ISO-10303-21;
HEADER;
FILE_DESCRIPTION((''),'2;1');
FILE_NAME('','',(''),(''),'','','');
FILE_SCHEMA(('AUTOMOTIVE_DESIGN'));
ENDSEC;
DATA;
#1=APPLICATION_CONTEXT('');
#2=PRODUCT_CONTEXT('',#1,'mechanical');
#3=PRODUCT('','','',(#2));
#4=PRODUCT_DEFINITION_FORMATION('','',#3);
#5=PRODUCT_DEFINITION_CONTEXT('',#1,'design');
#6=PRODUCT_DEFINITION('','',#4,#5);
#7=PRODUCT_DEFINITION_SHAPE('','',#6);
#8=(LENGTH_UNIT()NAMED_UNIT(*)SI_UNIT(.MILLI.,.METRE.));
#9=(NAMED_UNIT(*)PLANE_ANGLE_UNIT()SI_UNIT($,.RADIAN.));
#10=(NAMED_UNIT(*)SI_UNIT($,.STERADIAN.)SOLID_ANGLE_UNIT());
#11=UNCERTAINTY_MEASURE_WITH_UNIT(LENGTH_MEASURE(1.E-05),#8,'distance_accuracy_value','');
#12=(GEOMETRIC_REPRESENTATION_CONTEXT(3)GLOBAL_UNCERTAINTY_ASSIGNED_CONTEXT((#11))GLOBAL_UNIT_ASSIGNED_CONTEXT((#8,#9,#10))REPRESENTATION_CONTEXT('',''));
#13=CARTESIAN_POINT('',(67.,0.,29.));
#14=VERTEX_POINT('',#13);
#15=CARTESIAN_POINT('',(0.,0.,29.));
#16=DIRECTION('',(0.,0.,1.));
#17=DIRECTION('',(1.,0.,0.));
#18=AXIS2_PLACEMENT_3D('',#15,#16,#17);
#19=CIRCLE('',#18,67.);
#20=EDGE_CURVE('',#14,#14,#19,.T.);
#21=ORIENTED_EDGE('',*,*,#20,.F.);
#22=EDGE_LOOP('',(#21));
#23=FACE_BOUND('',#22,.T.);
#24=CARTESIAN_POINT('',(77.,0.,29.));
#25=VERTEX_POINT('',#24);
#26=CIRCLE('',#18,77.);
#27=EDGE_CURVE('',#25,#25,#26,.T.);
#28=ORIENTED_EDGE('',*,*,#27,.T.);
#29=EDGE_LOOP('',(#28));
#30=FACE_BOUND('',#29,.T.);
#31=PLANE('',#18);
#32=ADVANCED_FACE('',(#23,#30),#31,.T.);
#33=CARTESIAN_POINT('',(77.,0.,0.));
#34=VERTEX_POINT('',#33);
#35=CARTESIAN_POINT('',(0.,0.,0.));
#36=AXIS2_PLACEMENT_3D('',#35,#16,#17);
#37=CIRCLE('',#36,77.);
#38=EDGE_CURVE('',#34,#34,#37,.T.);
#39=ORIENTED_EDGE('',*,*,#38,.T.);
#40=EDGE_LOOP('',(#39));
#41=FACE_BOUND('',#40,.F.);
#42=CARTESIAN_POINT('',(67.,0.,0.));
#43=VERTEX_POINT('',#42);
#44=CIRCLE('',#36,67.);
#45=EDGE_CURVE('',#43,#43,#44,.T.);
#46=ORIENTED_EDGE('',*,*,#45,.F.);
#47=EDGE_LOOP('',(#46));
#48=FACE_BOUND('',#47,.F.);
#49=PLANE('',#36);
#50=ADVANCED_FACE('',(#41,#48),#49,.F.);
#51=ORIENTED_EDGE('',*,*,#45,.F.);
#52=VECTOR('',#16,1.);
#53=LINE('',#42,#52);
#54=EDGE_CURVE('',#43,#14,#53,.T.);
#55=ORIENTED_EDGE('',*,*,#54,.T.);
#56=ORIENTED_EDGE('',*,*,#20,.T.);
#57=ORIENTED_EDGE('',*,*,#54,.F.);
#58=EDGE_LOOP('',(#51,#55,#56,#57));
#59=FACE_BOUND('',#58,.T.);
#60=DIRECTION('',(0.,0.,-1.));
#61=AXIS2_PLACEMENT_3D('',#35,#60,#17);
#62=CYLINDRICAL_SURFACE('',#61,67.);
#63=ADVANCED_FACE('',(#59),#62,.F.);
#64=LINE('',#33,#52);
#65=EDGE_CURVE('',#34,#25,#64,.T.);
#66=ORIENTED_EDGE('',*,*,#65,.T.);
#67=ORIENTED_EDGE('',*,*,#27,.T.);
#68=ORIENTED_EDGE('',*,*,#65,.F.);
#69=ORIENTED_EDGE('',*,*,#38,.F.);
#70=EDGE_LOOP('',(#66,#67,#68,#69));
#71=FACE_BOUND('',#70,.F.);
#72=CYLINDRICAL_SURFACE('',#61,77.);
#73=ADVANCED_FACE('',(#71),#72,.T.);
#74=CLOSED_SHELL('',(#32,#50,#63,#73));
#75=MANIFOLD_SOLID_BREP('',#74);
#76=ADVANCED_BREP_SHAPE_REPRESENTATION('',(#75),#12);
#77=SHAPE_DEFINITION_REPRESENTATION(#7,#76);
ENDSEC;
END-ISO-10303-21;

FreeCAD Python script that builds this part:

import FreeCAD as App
import Part
import Sketcher

doc = App.newDocument("Part")
body = doc.addObject("PartDesign::Body", "Body")

sketch1 = body.newObject("Sketcher::SketchObject", "Sketch")
sketch1.AttachmentSupport = (doc.getObject("XY_Plane"), [""])
sketch1.MapMode = "FlatFace"
sketch1.addGeometry([
    Part.Circle(App.Vector(0, 0, 0), App.Vector(0, 0, 1), 77),
    Part.Circle(App.Vector(0, 0, 0), App.Vector(0, 0, 1), 67),
], False)
sketch1.addConstraint([
    Sketcher.Constraint("Coincident", 0, 3, -1, 1),
    Sketcher.Constraint("Coincident", 1, 3, -1, 1),
    Sketcher.Constraint("Diameter", 0, 154.0),
    Sketcher.Constraint("Diameter", 1, 134.0),
])
pad1 = body.newObject("PartDesign::Pad", "Pad")
pad1.Profile = sketch1
pad1.Length = 29

doc.recompute()
